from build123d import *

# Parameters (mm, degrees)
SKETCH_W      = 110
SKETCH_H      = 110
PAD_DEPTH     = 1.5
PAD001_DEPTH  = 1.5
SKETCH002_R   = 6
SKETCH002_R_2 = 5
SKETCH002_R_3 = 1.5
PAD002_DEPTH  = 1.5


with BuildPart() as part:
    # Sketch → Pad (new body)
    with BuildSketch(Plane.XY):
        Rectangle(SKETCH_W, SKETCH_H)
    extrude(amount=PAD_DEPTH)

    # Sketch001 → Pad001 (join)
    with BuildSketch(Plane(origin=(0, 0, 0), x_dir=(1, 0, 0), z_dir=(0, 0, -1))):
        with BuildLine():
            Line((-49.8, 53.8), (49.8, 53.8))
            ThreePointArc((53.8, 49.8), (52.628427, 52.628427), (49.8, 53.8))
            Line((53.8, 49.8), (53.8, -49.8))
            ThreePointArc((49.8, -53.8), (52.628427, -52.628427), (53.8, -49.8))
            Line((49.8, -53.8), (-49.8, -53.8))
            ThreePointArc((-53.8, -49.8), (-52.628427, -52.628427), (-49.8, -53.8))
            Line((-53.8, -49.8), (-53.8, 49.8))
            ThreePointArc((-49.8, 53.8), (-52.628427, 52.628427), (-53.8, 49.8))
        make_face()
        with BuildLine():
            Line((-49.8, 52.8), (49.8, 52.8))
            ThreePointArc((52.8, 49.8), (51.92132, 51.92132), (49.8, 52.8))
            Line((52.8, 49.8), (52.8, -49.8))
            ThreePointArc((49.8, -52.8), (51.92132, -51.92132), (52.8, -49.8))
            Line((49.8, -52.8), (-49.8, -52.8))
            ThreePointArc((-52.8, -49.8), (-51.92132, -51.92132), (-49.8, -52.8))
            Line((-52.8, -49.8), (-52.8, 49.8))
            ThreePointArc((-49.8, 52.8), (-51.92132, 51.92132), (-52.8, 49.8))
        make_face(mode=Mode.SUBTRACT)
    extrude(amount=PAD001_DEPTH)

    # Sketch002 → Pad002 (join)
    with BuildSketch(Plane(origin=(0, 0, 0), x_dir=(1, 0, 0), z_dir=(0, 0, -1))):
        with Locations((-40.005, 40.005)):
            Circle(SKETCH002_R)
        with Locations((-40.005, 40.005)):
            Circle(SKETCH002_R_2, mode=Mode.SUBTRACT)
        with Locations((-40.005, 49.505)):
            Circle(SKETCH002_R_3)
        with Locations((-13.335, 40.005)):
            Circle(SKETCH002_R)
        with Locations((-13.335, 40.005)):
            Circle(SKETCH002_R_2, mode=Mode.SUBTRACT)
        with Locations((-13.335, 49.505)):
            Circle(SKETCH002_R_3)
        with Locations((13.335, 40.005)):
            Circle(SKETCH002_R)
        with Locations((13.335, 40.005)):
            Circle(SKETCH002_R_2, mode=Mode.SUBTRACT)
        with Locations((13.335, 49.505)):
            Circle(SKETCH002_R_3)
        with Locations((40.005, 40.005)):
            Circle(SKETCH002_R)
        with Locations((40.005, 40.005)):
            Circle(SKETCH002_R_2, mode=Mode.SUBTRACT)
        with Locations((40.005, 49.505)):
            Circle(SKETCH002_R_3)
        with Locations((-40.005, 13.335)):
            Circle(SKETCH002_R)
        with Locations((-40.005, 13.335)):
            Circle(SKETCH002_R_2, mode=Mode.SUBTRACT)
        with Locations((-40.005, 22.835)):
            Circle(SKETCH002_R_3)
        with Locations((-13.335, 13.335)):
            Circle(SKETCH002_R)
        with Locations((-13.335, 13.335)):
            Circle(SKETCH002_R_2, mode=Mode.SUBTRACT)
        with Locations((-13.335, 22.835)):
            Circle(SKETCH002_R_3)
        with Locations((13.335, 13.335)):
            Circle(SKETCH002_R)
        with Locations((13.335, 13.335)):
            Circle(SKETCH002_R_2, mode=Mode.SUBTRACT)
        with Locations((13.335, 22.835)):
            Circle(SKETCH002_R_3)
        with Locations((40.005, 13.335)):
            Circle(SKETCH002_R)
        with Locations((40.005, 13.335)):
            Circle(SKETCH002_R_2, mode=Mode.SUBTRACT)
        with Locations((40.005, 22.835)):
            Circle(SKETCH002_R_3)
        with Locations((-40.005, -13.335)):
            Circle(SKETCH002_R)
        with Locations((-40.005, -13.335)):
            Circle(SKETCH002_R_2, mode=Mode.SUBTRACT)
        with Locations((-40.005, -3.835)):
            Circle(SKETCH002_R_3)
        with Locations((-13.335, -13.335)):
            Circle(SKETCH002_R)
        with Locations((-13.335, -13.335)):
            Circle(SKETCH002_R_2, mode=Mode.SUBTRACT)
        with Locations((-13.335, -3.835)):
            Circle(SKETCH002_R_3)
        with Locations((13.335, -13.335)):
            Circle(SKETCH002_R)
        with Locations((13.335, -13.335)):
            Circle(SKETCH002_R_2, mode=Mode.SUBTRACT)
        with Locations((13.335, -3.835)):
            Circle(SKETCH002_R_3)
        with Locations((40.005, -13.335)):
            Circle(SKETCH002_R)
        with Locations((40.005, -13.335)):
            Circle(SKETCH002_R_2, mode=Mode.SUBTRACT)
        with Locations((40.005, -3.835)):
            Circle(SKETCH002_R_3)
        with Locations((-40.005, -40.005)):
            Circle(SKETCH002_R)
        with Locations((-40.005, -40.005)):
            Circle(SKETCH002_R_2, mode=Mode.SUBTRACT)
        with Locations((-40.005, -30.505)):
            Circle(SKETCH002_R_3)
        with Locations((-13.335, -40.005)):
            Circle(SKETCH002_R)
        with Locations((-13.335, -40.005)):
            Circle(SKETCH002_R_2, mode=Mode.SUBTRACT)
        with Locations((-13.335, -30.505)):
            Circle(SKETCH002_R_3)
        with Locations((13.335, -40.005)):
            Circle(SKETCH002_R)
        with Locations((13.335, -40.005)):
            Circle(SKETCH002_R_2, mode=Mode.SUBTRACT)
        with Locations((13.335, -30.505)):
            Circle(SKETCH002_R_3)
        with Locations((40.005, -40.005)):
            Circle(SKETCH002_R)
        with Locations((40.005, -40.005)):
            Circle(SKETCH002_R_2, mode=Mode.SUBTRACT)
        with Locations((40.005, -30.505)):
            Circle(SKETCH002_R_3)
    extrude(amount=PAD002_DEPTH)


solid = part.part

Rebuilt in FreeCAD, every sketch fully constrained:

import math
import FreeCAD as App
import Part
import Sketcher

V = App.Vector
Q = App.Units.Quantity


def add_polygon(sketch, points):
    """Adds a closed chain of lines whose ends are joined by coincident constraints."""
    first, n = sketch.GeometryCount, len(points)
    for a, b in zip(points, points[1:] + points[:1]):
        sketch.addGeometry(Part.LineSegment(App.Vector(*a, 0), App.Vector(*b, 0)), False)
    for i in range(n):
        sketch.addConstraint(Sketcher.Constraint("Coincident", first + i, 2, first + (i + 1) % n, 1))

doc = App.newDocument("Part")
body = doc.addObject("PartDesign::Body", "Body")

sketch1 = body.newObject("Sketcher::SketchObject", "Sketch")
sketch1.AttachmentSupport = (doc.getObject("XY_Plane"), [""])
sketch1.MapMode = "FlatFace"
add_polygon(sketch1, [(-55, 55), (-55, -55), (55, -55), (55, 55)])
sketch1.addConstraint(Sketcher.Constraint("Vertical", 0))
sketch1.addConstraint(Sketcher.Constraint("Horizontal", 1))
sketch1.addConstraint(Sketcher.Constraint("Vertical", 2))
sketch1.addConstraint(Sketcher.Constraint("Horizontal", 3))
sketch1.addConstraint(Sketcher.Constraint("Symmetric", 0, 2, 2, 2, -1, 1))
sketch1.addConstraint(Sketcher.Constraint("Equal", 3, 0))
sketch1.addConstraint(Sketcher.Constraint("DistanceX", 1, 1, 1, 2, Q("110 mm")))
pad1 = body.newObject("PartDesign::Pad", "Pad")
pad1.Profile = sketch1
pad1.Length = 1.5

sketch2 = body.newObject("Sketcher::SketchObject", "Sketch001")
sketch2.AttachmentSupport = (doc.getObject("XY_Plane"), [""])
sketch2.MapMode = "FlatFace"
sketch2.addGeometry(Part.LineSegment(V(49.8, -53.8, 0), V(-49.8, -53.8, 0)), False)
sketch2.addGeometry(Part.ArcOfCircle(Part.Circle(V(-49.8, -49.8, 0), V(0, 0, 1), 4), math.radians(-179.999994), math.radians(-90.000006)), False)
sketch2.addGeometry(Part.LineSegment(V(-53.8, -49.8, 0), V(-53.8, 49.8, 0)), False)
sketch2.addGeometry(Part.ArcOfCircle(Part.Circle(V(-49.8, 49.8, 0), V(0, 0, 1), 4), math.radians(90.000006), math.radians(179.999994)), False)
sketch2.addGeometry(Part.LineSegment(V(-49.8, 53.8, 0), V(49.8, 53.8, 0)), False)
sketch2.addGeometry(Part.ArcOfCircle(Part.Circle(V(49.8, 49.8, 0), V(0, 0, 1), 4), math.radians(0.000006), math.radians(89.999994)), False)
sketch2.addGeometry(Part.LineSegment(V(53.8, 49.8, 0), V(53.8, -49.8, 0)), False)
sketch2.addGeometry(Part.ArcOfCircle(Part.Circle(V(49.8, -49.8, 0), V(0, 0, 1), 4), math.radians(-89.999994), math.radians(-0.000006)), False)
sketch2.addGeometry(Part.LineSegment(V(-49.8, -52.8, 0), V(49.8, -52.8, 0)), False)
sketch2.addGeometry(Part.ArcOfCircle(Part.Circle(V(49.799999, -49.799999, 0), V(0, 0, 1), 3.000001), math.radians(-89.999978), math.radians(-0.000022)), False)
sketch2.addGeometry(Part.LineSegment(V(52.8, -49.8, 0), V(52.8, 49.8, 0)), False)
sketch2.addGeometry(Part.ArcOfCircle(Part.Circle(V(49.799999, 49.799999, 0), V(0, 0, 1), 3.000001), math.radians(0.000022), math.radians(89.999978)), False)
sketch2.addGeometry(Part.LineSegment(V(49.8, 52.8, 0), V(-49.8, 52.8, 0)), False)
sketch2.addGeometry(Part.ArcOfCircle(Part.Circle(V(-49.799999, 49.799999, 0), V(0, 0, 1), 3.000001), math.radians(90.000022), math.radians(179.999978)), False)
sketch2.addGeometry(Part.LineSegment(V(-52.8, 49.8, 0), V(-52.8, -49.8, 0)), False)
sketch2.addGeometry(Part.ArcOfCircle(Part.Circle(V(-49.799999, -49.799999, 0), V(0, 0, 1), 3.000001), math.radians(-179.999978), math.radians(-90.000022)), False)
sketch2.addConstraint(Sketcher.Constraint("Tangent", 0, 2, 1, 2))
sketch2.addConstraint(Sketcher.Constraint("Tangent", 1, 1, 2, 1))
sketch2.addConstraint(Sketcher.Constraint("Tangent", 2, 2, 3, 2))
sketch2.addConstraint(Sketcher.Constraint("Tangent", 3, 1, 4, 1))
sketch2.addConstraint(Sketcher.Constraint("Tangent", 4, 2, 5, 2))
sketch2.addConstraint(Sketcher.Constraint("Tangent", 5, 1, 6, 1))
sketch2.addConstraint(Sketcher.Constraint("Tangent", 6, 2, 7, 2))
sketch2.addConstraint(Sketcher.Constraint("Tangent", 7, 1, 0, 1))
sketch2.addConstraint(Sketcher.Constraint("Tangent", 8, 2, 9, 1))
sketch2.addConstraint(Sketcher.Constraint("Tangent", 9, 2, 10, 1))
sketch2.addConstraint(Sketcher.Constraint("Tangent", 10, 2, 11, 1))
sketch2.addConstraint(Sketcher.Constraint("Tangent", 11, 2, 12, 1))
sketch2.addConstraint(Sketcher.Constraint("Tangent", 12, 2, 13, 1))
sketch2.addConstraint(Sketcher.Constraint("Tangent", 13, 2, 14, 1))
sketch2.addConstraint(Sketcher.Constraint("Tangent", 14, 2, 15, 1))
sketch2.addConstraint(Sketcher.Constraint("Tangent", 15, 2, 8, 1))
sketch2.addConstraint(Sketcher.Constraint("Horizontal", 0))
sketch2.addConstraint(Sketcher.Constraint("Vertical", 2))
sketch2.addConstraint(Sketcher.Constraint("Horizontal", 4))
sketch2.addConstraint(Sketcher.Constraint("Vertical", 6))
sketch2.addConstraint(Sketcher.Constraint("Horizontal", 8))
sketch2.addConstraint(Sketcher.Constraint("Vertical", 10))
sketch2.addConstraint(Sketcher.Constraint("Horizontal", 12))
sketch2.addConstraint(Sketcher.Constraint("Vertical", 14))
sketch2.addConstraint(Sketcher.Constraint("Coincident", 9, 3, 7, 3))
sketch2.addConstraint(Sketcher.Constraint("Coincident", 11, 3, 5, 3))
sketch2.addConstraint(Sketcher.Constraint("Coincident", 13, 3, 3, 3))
sketch2.addConstraint(Sketcher.Constraint("Equal", 1, 3))
sketch2.addConstraint(Sketcher.Constraint("Equal", 3, 5))
sketch2.addConstraint(Sketcher.Constraint("Equal", 5, 7))
sketch2.addConstraint(Sketcher.Constraint("Equal", 13, 15))
sketch2.addConstraint(Sketcher.Constraint("Symmetric", 1, 3, 5, 3, -1, 1))
sketch2.addConstraint(Sketcher.Constraint("Equal", 12, 2))
sketch2.addConstraint(Sketcher.Constraint("Radius", 1, Q("4 mm")))
sketch2.addConstraint(Sketcher.Constraint("Radius", 9, Q("3.000001 mm")))
sketch2.addConstraint(Sketcher.Constraint("DistanceX", 0, 2, 0, 1, Q("99.6 mm")))
pad2 = body.newObject("PartDesign::Pad", "Pad001")
pad2.Profile = sketch2
pad2.Length = 1.5
pad2.Reversed = True

sketch3 = body.newObject("Sketcher::SketchObject", "Sketch002")
sketch3.AttachmentSupport = (doc.getObject("XY_Plane"), [""])
sketch3.MapMode = "FlatFace"
sketch3.addGeometry(Part.Circle(V(-40.005, -40.005, 0), V(0, 0, 1), 6), False)
sketch3.addGeometry(Part.Circle(V(-40.005, -40.005, 0), V(0, 0, 1), 5), False)
sketch3.addGeometry(Part.Circle(V(-40.005, -49.505, 0), V(0, 0, 1), 1.5), False)
sketch3.addGeometry(Part.Circle(V(-13.335, -40.005, 0), V(0, 0, 1), 6), False)
sketch3.addGeometry(Part.Circle(V(-13.335, -40.005, 0), V(0, 0, 1), 5), False)
sketch3.addGeometry(Part.Circle(V(-13.335, -49.505, 0), V(0, 0, 1), 1.5), False)
sketch3.addGeometry(Part.Circle(V(13.335, -40.005, 0), V(0, 0, 1), 6), False)
sketch3.addGeometry(Part.Circle(V(13.335, -40.005, 0), V(0, 0, 1), 5), False)
sketch3.addGeometry(Part.Circle(V(13.335, -49.505, 0), V(0, 0, 1), 1.5), False)
sketch3.addGeometry(Part.Circle(V(40.005, -40.005, 0), V(0, 0, 1), 6), False)
sketch3.addGeometry(Part.Circle(V(40.005, -40.005, 0), V(0, 0, 1), 5), False)
sketch3.addGeometry(Part.Circle(V(40.005, -49.505, 0), V(0, 0, 1), 1.5), False)
sketch3.addGeometry(Part.Circle(V(-40.005, -13.335, 0), V(0, 0, 1), 6), False)
sketch3.addGeometry(Part.Circle(V(-40.005, -13.335, 0), V(0, 0, 1), 5), False)
sketch3.addGeometry(Part.Circle(V(-40.005, -22.835, 0), V(0, 0, 1), 1.5), False)
sketch3.addGeometry(Part.Circle(V(-13.335, -13.335, 0), V(0, 0, 1), 6), False)
sketch3.addGeometry(Part.Circle(V(-13.335, -13.335, 0), V(0, 0, 1), 5), False)
sketch3.addGeometry(Part.Circle(V(-13.335, -22.835, 0), V(0, 0, 1), 1.5), False)
sketch3.addGeometry(Part.Circle(V(13.335, -13.335, 0), V(0, 0, 1), 6), False)
sketch3.addGeometry(Part.Circle(V(13.335, -13.335, 0), V(0, 0, 1), 5), False)
sketch3.addGeometry(Part.Circle(V(13.335, -22.835, 0), V(0, 0, 1), 1.5), False)
sketch3.addGeometry(Part.Circle(V(40.005, -13.335, 0), V(0, 0, 1), 6), False)
sketch3.addGeometry(Part.Circle(V(40.005, -13.335, 0), V(0, 0, 1), 5), False)
sketch3.addGeometry(Part.Circle(V(40.005, -22.835, 0), V(0, 0, 1), 1.5), False)
sketch3.addGeometry(Part.Circle(V(-40.005, 13.335, 0), V(0, 0, 1), 6), False)
sketch3.addGeometry(Part.Circle(V(-40.005, 13.335, 0), V(0, 0, 1), 5), False)
sketch3.addGeometry(Part.Circle(V(-40.005, 3.835, 0), V(0, 0, 1), 1.5), False)
sketch3.addGeometry(Part.Circle(V(-13.335, 13.335, 0), V(0, 0, 1), 6), False)
sketch3.addGeometry(Part.Circle(V(-13.335, 13.335, 0), V(0, 0, 1), 5), False)
sketch3.addGeometry(Part.Circle(V(-13.335, 3.835, 0), V(0, 0, 1), 1.5), False)
sketch3.addGeometry(Part.Circle(V(13.335, 13.335, 0), V(0, 0, 1), 6), False)
sketch3.addGeometry(Part.Circle(V(13.335, 13.335, 0), V(0, 0, 1), 5), False)
sketch3.addGeometry(Part.Circle(V(13.335, 3.835, 0), V(0, 0, 1), 1.5), False)
sketch3.addGeometry(Part.Circle(V(40.005, 13.335, 0), V(0, 0, 1), 6), False)
sketch3.addGeometry(Part.Circle(V(40.005, 13.335, 0), V(0, 0, 1), 5), False)
sketch3.addGeometry(Part.Circle(V(40.005, 3.835, 0), V(0, 0, 1), 1.5), False)
sketch3.addGeometry(Part.Circle(V(-40.005, 40.005, 0), V(0, 0, 1), 6), False)
sketch3.addGeometry(Part.Circle(V(-40.005, 40.005, 0), V(0, 0, 1), 5), False)
sketch3.addGeometry(Part.Circle(V(-40.005, 30.505, 0), V(0, 0, 1), 1.5), False)
sketch3.addGeometry(Part.Circle(V(-13.335, 40.005, 0), V(0, 0, 1), 6), False)
sketch3.addGeometry(Part.Circle(V(-13.335, 40.005, 0), V(0, 0, 1), 5), False)
sketch3.addGeometry(Part.Circle(V(-13.335, 30.505, 0), V(0, 0, 1), 1.5), False)
sketch3.addGeometry(Part.Circle(V(13.335, 40.005, 0), V(0, 0, 1), 6), False)
sketch3.addGeometry(Part.Circle(V(13.335, 40.005, 0), V(0, 0, 1), 5), False)
sketch3.addGeometry(Part.Circle(V(13.335, 30.505, 0), V(0, 0, 1), 1.5), False)
sketch3.addGeometry(Part.Circle(V(40.005, 40.005, 0), V(0, 0, 1), 6), False)
sketch3.addGeometry(Part.Circle(V(40.005, 40.005, 0), V(0, 0, 1), 5), False)
sketch3.addGeometry(Part.Circle(V(40.005, 30.505, 0), V(0, 0, 1), 1.5), False)
sketch3.addConstraint(Sketcher.Constraint("Coincident", 1, 3, 0, 3))
sketch3.addConstraint(Sketcher.Constraint("Coincident", 4, 3, 3, 3))
sketch3.addConstraint(Sketcher.Constraint("Coincident", 7, 3, 6, 3))
sketch3.addConstraint(Sketcher.Constraint("Coincident", 10, 3, 9, 3))
sketch3.addConstraint(Sketcher.Constraint("Coincident", 13, 3, 12, 3))
sketch3.addConstraint(Sketcher.Constraint("Coincident", 16, 3, 15, 3))
sketch3.addConstraint(Sketcher.Constraint("Coincident", 19, 3, 18, 3))
sketch3.addConstraint(Sketcher.Constraint("Coincident", 22, 3, 21, 3))
sketch3.addConstraint(Sketcher.Constraint("Coincident", 25, 3, 24, 3))
sketch3.addConstraint(Sketcher.Constraint("Coincident", 28, 3, 27, 3))
sketch3.addConstraint(Sketcher.Constraint("Coincident", 31, 3, 30, 3))
sketch3.addConstraint(Sketcher.Constraint("Coincident", 34, 3, 33, 3))
sketch3.addConstraint(Sketcher.Constraint("Coincident", 37, 3, 36, 3))
sketch3.addConstraint(Sketcher.Constraint("Coincident", 40, 3, 39, 3))
sketch3.addConstraint(Sketcher.Constraint("Coincident", 43, 3, 42, 3))
sketch3.addConstraint(Sketcher.Constraint("Coincident", 46, 3, 45, 3))
sketch3.addConstraint(Sketcher.Constraint("Equal", 0, 3))
sketch3.addConstraint(Sketcher.Constraint("Equal", 1, 4))
sketch3.addConstraint(Sketcher.Constraint("Equal", 2, 5))
sketch3.addConstraint(Sketcher.Constraint("Equal", 3, 6))
sketch3.addConstraint(Sketcher.Constraint("Equal", 4, 7))
sketch3.addConstraint(Sketcher.Constraint("Equal", 5, 8))
sketch3.addConstraint(Sketcher.Constraint("Equal", 6, 9))
sketch3.addConstraint(Sketcher.Constraint("Equal", 7, 10))
sketch3.addConstraint(Sketcher.Constraint("Equal", 8, 11))
sketch3.addConstraint(Sketcher.Constraint("Equal", 9, 12))
sketch3.addConstraint(Sketcher.Constraint("Equal", 10, 13))
sketch3.addConstraint(Sketcher.Constraint("Equal", 11, 14))
sketch3.addConstraint(Sketcher.Constraint("Equal", 12, 15))
sketch3.addConstraint(Sketcher.Constraint("Equal", 13, 16))
sketch3.addConstraint(Sketcher.Constraint("Equal", 14, 17))
sketch3.addConstraint(Sketcher.Constraint("Equal", 15, 18))
sketch3.addConstraint(Sketcher.Constraint("Equal", 16, 19))
sketch3.addConstraint(Sketcher.Constraint("Equal", 17, 20))
sketch3.addConstraint(Sketcher.Constraint("Equal", 18, 21))
sketch3.addConstraint(Sketcher.Constraint("Equal", 19, 22))
sketch3.addConstraint(Sketcher.Constraint("Equal", 20, 23))
sketch3.addConstraint(Sketcher.Constraint("Equal", 21, 24))
sketch3.addConstraint(Sketcher.Constraint("Equal", 22, 25))
sketch3.addConstraint(Sketcher.Constraint("Equal", 23, 26))
sketch3.addConstraint(Sketcher.Constraint("Equal", 24, 27))
sketch3.addConstraint(Sketcher.Constraint("Equal", 25, 28))
sketch3.addConstraint(Sketcher.Constraint("Equal", 26, 29))
sketch3.addConstraint(Sketcher.Constraint("Equal", 27, 30))
sketch3.addConstraint(Sketcher.Constraint("Equal", 28, 31))
sketch3.addConstraint(Sketcher.Constraint("Equal", 29, 32))
sketch3.addConstraint(Sketcher.Constraint("Equal", 30, 33))
sketch3.addConstraint(Sketcher.Constraint("Equal", 31, 34))
sketch3.addConstraint(Sketcher.Constraint("Equal", 32, 35))
sketch3.addConstraint(Sketcher.Constraint("Equal", 33, 36))
sketch3.addConstraint(Sketcher.Constraint("Equal", 34, 37))
sketch3.addConstraint(Sketcher.Constraint("Equal", 35, 38))
sketch3.addConstraint(Sketcher.Constraint("Equal", 36, 39))
sketch3.addConstraint(Sketcher.Constraint("Equal", 37, 40))
sketch3.addConstraint(Sketcher.Constraint("Equal", 38, 41))
sketch3.addConstraint(Sketcher.Constraint("Equal", 39, 42))
sketch3.addConstraint(Sketcher.Constraint("Equal", 40, 43))
sketch3.addConstraint(Sketcher.Constraint("Equal", 41, 44))
sketch3.addConstraint(Sketcher.Constraint("Equal", 42, 45))
sketch3.addConstraint(Sketcher.Constraint("Equal", 43, 46))
sketch3.addConstraint(Sketcher.Constraint("Equal", 44, 47))
sketch3.addConstraint(Sketcher.Constraint("Symmetric", 21, 3, 24, 3, -1, 1))
sketch3.addConstraint(Sketcher.Constraint("Symmetric", 18, 3, 27, 3, -1, 1))
sketch3.addConstraint(Sketcher.Constraint("Symmetric", 15, 3, 30, 3, -1, 1))
sketch3.addConstraint(Sketcher.Constraint("Symmetric", 12, 3, 33, 3, -1, 1))
sketch3.addConstraint(Sketcher.Constraint("Symmetric", 9, 3, 36, 3, -1, 1))
sketch3.addConstraint(Sketcher.Constraint("Symmetric", 6, 3, 39, 3, -1, 1))
sketch3.addConstraint(Sketcher.Constraint("Symmetric", 3, 3, 42, 3, -1, 1))
sketch3.addConstraint(Sketcher.Constraint("Symmetric", 0, 3, 45, 3, -1, 1))
sketch3.addConstraint(Sketcher.Constraint("Symmetric", 3, 3, 6, 3, -2))
sketch3.addConstraint(Sketcher.Constraint("Symmetric", 5, 3, 8, 3, -2))
sketch3.addConstraint(Sketcher.Constraint("Symmetric", 0, 3, 9, 3, -2))
sketch3.addConstraint(Sketcher.Constraint("Symmetric", 2, 3, 11, 3, -2))
sketch3.addConstraint(Sketcher.Constraint("Symmetric", 15, 3, 18, 3, -2))
sketch3.addConstraint(Sketcher.Constraint("Symmetric", 17, 3, 20, 3, -2))
sketch3.addConstraint(Sketcher.Constraint("Symmetric", 12, 3, 21, 3, -2))
sketch3.addConstraint(Sketcher.Constraint("Symmetric", 14, 3, 23, 3, -2))
sketch3.addConstraint(Sketcher.Constraint("Symmetric", 29, 3, 32, 3, -2))
sketch3.addConstraint(Sketcher.Constraint("Symmetric", 26, 3, 35, 3, -2))
sketch3.addConstraint(Sketcher.Constraint("Symmetric", 41, 3, 44, 3, -2))
sketch3.addConstraint(Sketcher.Constraint("Symmetric", 38, 3, 47, 3, -2))
sketch3.addConstraint(Sketcher.Constraint("Horizontal", 1, 3, 3, 3))
sketch3.addConstraint(Sketcher.Constraint("Horizontal", 2, 3, 5, 3))
sketch3.addConstraint(Sketcher.Constraint("Horizontal", 13, 3, 15, 3))
sketch3.addConstraint(Sketcher.Constraint("Horizontal", 14, 3, 17, 3))
sketch3.addConstraint(Sketcher.Constraint("Horizontal", 26, 3, 29, 3))
sketch3.addConstraint(Sketcher.Constraint("Horizontal", 38, 3, 41, 3))
sketch3.addConstraint(Sketcher.Constraint("Vertical", 1, 3, 2, 3))
sketch3.addConstraint(Sketcher.Constraint("Vertical", 4, 3, 5, 3))
sketch3.addConstraint(Sketcher.Constraint("Vertical", 2, 3, 12, 3))
sketch3.addConstraint(Sketcher.Constraint("Vertical", 13, 3, 14, 3))
sketch3.addConstraint(Sketcher.Constraint("Vertical", 5, 3, 15, 3))
sketch3.addConstraint(Sketcher.Constraint("Vertical", 16, 3, 17, 3))
sketch3.addConstraint(Sketcher.Constraint("Vertical", 25, 3, 26, 3))
sketch3.addConstraint(Sketcher.Constraint("Vertical", 28, 3, 29, 3))
sketch3.addConstraint(Sketcher.Constraint("Vertical", 37, 3, 38, 3))
sketch3.addConstraint(Sketcher.Constraint("Vertical", 40, 3, 41, 3))
sketch3.addConstraint(Sketcher.Constraint("Diameter", 0, Q("12 mm")))
sketch3.addConstraint(Sketcher.Constraint("Diameter", 1, Q("10 mm")))
sketch3.addConstraint(Sketcher.Constraint("Diameter", 2, Q("3 mm")))
sketch3.addConstraint(Sketcher.Constraint("DistanceY", 2, 3, 0, 3, Q("9.5 mm")))
sketch3.addConstraint(Sketcher.Constraint("DistanceY", 14, 3, 12, 3, Q("9.5 mm")))
sketch3.addConstraint(Sketcher.Constraint("DistanceY", 26, 3, 24, 3, Q("9.5 mm")))
sketch3.addConstraint(Sketcher.Constraint("DistanceY", 38, 3, 36, 3, Q("9.5 mm")))
sketch3.addConstraint(Sketcher.Constraint("DistanceX", 0, 3, 3, 3, Q("26.67 mm")))
sketch3.addConstraint(Sketcher.Constraint("DistanceX", 3, 3, 6, 3, Q("26.67 mm")))
sketch3.addConstraint(Sketcher.Constraint("DistanceY", 0, 3, 12, 3, Q("26.67 mm")))
sketch3.addConstraint(Sketcher.Constraint("DistanceY", 12, 3, 24, 3, Q("26.67 mm")))
pad3 = body.newObject("PartDesign::Pad", "Pad002")
pad3.Profile = sketch3
pad3.Length = 1.5
pad3.Reversed = True

doc.recompute()
